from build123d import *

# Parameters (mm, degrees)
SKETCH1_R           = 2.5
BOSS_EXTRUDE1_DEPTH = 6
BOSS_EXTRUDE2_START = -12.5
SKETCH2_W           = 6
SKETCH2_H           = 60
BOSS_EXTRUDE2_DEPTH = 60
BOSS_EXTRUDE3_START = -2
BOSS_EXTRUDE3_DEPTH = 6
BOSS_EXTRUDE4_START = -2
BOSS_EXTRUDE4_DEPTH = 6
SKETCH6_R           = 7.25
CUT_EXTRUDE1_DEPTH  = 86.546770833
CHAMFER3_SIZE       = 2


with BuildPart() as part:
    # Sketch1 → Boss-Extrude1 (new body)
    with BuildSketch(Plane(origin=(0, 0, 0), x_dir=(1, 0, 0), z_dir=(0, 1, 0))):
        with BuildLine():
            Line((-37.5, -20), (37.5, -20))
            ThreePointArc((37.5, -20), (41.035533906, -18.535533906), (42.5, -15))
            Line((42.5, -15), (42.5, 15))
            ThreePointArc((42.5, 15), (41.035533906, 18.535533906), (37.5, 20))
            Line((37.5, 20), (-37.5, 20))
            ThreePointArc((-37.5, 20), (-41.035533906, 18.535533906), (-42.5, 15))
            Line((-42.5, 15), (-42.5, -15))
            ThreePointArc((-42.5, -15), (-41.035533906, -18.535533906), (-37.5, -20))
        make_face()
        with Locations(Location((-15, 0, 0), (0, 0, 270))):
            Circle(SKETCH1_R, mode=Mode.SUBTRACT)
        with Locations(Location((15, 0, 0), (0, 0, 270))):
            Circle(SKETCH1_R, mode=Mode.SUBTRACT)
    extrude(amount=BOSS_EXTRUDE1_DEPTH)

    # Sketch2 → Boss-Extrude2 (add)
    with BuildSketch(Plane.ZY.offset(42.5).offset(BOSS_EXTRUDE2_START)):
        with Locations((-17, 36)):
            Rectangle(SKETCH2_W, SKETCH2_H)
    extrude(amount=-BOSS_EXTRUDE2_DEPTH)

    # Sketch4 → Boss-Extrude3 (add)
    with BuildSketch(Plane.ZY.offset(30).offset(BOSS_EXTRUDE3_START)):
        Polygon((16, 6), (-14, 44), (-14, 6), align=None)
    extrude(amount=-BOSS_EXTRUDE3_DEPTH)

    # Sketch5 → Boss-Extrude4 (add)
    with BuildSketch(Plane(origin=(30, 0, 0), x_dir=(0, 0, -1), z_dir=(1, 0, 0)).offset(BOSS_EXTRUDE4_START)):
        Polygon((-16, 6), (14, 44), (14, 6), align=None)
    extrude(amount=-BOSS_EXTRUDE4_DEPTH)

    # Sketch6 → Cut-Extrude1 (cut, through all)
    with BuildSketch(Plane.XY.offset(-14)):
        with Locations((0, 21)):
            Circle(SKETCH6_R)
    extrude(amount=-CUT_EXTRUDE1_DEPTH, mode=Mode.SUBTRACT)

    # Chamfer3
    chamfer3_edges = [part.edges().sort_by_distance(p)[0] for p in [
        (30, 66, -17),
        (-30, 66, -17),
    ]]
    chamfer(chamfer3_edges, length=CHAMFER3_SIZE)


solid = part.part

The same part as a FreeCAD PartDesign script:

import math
import FreeCAD as App
import Part
import Sketcher
from FreeCAD import Vector


def edges_at(feature, points):
    """Names of the edges that pass closest to the given points."""
    edges = feature.Shape.Edges
    near = lambda p: min(range(len(edges)), key=lambda i: edges[i].distToShape(Part.Vertex(*p))[0])
    return sorted({f"Edge{near(p) + 1}" for p in points})

doc = App.newDocument("Part")
body = doc.addObject("PartDesign::Body", "Body")

sketch1 = body.newObject("Sketcher::SketchObject", "Sketch")
sketch1.AttachmentSupport = (doc.getObject("XZ_Plane"), [""])
sketch1.MapMode = "FlatFace"
sketch1.addGeometry([
    Part.LineSegment(Vector(-37.5, 20, 0), Vector(37.5, 20, 0)),
    Part.ArcOfCircle(Part.Circle(Vector(37.5, 15, 0), Vector(0, 0, 1), 5), math.radians(0), math.radians(90)),
    Part.LineSegment(Vector(42.5, 15, 0), Vector(42.5, -15, 0)),
    Part.ArcOfCircle(Part.Circle(Vector(37.5, -15, 0), Vector(0, 0, 1), 5), math.radians(-90), math.radians(0)),
    Part.LineSegment(Vector(37.5, -20, 0), Vector(-37.5, -20, 0)),
    Part.ArcOfCircle(Part.Circle(Vector(-37.5, -15, 0), Vector(0, 0, 1), 5), math.radians(180), math.radians(270)),
    Part.LineSegment(Vector(-42.5, -15, 0), Vector(-42.5, 15, 0)),
    Part.ArcOfCircle(Part.Circle(Vector(-37.5, 15, 0), Vector(0, 0, 1), 5), math.radians(90), math.radians(180)),
    Part.Circle(Vector(-15, 0, 0), Vector(0, 0, 1), 2.5),
    Part.Circle(Vector(15, 0, 0), Vector(0, 0, 1), 2.5),
], False)
sketch1.addConstraint([
    Sketcher.Constraint("Tangent", 0, 2, 1, 2),
    Sketcher.Constraint("Tangent", 1, 1, 2, 1),
    Sketcher.Constraint("Tangent", 2, 2, 3, 2),
    Sketcher.Constraint("Tangent", 3, 1, 4, 1),
    Sketcher.Constraint("Tangent", 4, 2, 5, 2),
    Sketcher.Constraint("Tangent", 5, 1, 6, 1),
    Sketcher.Constraint("Tangent", 6, 2, 7, 2),
    Sketcher.Constraint("Tangent", 7, 1, 0, 1),
    Sketcher.Constraint("Horizontal", 0),
    Sketcher.Constraint("Vertical", 2),
    Sketcher.Constraint("Horizontal", 4),
    Sketcher.Constraint("Vertical", 6),
    Sketcher.Constraint("Equal", 1, 3),
    Sketcher.Constraint("Equal", 3, 5),
    Sketcher.Constraint("Equal", 5, 7),
    Sketcher.Constraint("Equal", 8, 9),
    Sketcher.Constraint("Symmetric", 1, 3, 5, 3, -1, 1),
    Sketcher.Constraint("Symmetric", 8, 3, 9, 3, -1, 1),
    Sketcher.Constraint("PointOnObject", 8, 3, -1),
    Sketcher.Constraint("Diameter", 8, 5.0),
    Sketcher.Constraint("Radius", 1, 5.0),
    Sketcher.Constraint("DistanceX", 0, 1, 0, 2, 75.0),
    Sketcher.Constraint("DistanceY", 2, 2, 2, 1, 30.0),
    Sketcher.Constraint("DistanceX", 8, 3, -1, 1, 15.0),
])
pad1 = body.newObject("PartDesign::Pad", "Pad")
pad1.Profile = sketch1
pad1.Length = 6
pad1.Reversed = True

sketch2 = body.newObject("Sketcher::SketchObject", "Sketch001")
sketch2.AttachmentSupport = (doc.getObject("YZ_Plane"), [""])
sketch2.MapMode = "FlatFace"
sketch2.AttachmentOffset = App.Placement(Vector(0, 0, -30), App.Rotation())
sketch2.addGeometry([
    Part.LineSegment(Vector(66, -20, 0), Vector(6, -20, 0)),
    Part.LineSegment(Vector(6, -20, 0), Vector(6, -14, 0)),
    Part.LineSegment(Vector(6, -14, 0), Vector(66, -14, 0)),
    Part.LineSegment(Vector(66, -14, 0), Vector(66, -20, 0)),
], False)
sketch2.addConstraint([
    Sketcher.Constraint("Coincident", 0, 2, 1, 1),
    Sketcher.Constraint("Coincident", 1, 2, 2, 1),
    Sketcher.Constraint("Coincident", 2, 2, 3, 1),
    Sketcher.Constraint("Coincident", 3, 2, 0, 1),
    Sketcher.Constraint("Horizontal", 0),
    Sketcher.Constraint("Vertical", 1),
    Sketcher.Constraint("Horizontal", 2),
    Sketcher.Constraint("Vertical", 3),
    Sketcher.Constraint("DistanceX", 0, 2, 0, 1, 60.0),
    Sketcher.Constraint("DistanceY", 1, 1, 1, 2, 6.0),
    Sketcher.Constraint("DistanceX", -1, 1, 0, 2, 6.0),
    Sketcher.Constraint("DistanceY", 0, 2, -1, 1, 20.0),
])
pad2 = body.newObject("PartDesign::Pad", "Pad001")
pad2.Profile = sketch2
pad2.Length = 60

sketch3 = body.newObject("Sketcher::SketchObject", "Sketch002")
sketch3.AttachmentSupport = (doc.getObject("YZ_Plane"), [""])
sketch3.MapMode = "FlatFace"
sketch3.AttachmentOffset = App.Placement(Vector(0, 0, -28), App.Rotation())
sketch3.addGeometry([
    Part.LineSegment(Vector(6, 16, 0), Vector(44, -14, 0)),
    Part.LineSegment(Vector(44, -14, 0), Vector(6, -14, 0)),
    Part.LineSegment(Vector(6, -14, 0), Vector(6, 16, 0)),
], False)
sketch3.addConstraint([
    Sketcher.Constraint("Coincident", 0, 2, 1, 1),
    Sketcher.Constraint("Coincident", 1, 2, 2, 1),
    Sketcher.Constraint("Coincident", 2, 2, 0, 1),
    Sketcher.Constraint("Horizontal", 1),
    Sketcher.Constraint("Vertical", 2),
    Sketcher.Constraint("DistanceX", 1, 2, 1, 1, 38.0),
    Sketcher.Constraint("DistanceY", 2, 1, 2, 2, 30.0),
    Sketcher.Constraint("DistanceX", -1, 1, 0, 2, 44.0),
    Sketcher.Constraint("DistanceY", 0, 2, -1, 1, 14.0),
])
pad3 = body.newObject("PartDesign::Pad", "Pad002")
pad3.Profile = sketch3
pad3.Length = 6

sketch4 = body.newObject("Sketcher::SketchObject", "Sketch003")
sketch4.AttachmentSupport = (doc.getObject("YZ_Plane"), [""])
sketch4.MapMode = "FlatFace"
sketch4.AttachmentOffset = App.Placement(Vector(0, 0, 28), App.Rotation())
sketch4.addGeometry([
    Part.LineSegment(Vector(44, -14, 0), Vector(6, 16, 0)),
    Part.LineSegment(Vector(6, 16, 0), Vector(6, -14, 0)),
    Part.LineSegment(Vector(6, -14, 0), Vector(44, -14, 0)),
], False)
sketch4.addConstraint([
    Sketcher.Constraint("Coincident", 0, 2, 1, 1),
    Sketcher.Constraint("Coincident", 1, 2, 2, 1),
    Sketcher.Constraint("Coincident", 2, 2, 0, 1),
    Sketcher.Constraint("Vertical", 1),
    Sketcher.Constraint("Horizontal", 2),
    Sketcher.Constraint("DistanceX", 2, 1, 2, 2, 38.0),
    Sketcher.Constraint("DistanceY", 1, 2, 1, 1, 30.0),
    Sketcher.Constraint("DistanceX", -1, 1, 0, 2, 6.0),
    Sketcher.Constraint("DistanceY", -1, 1, 0, 2, 16.0),
])
pad4 = body.newObject("PartDesign::Pad", "Pad003")
pad4.Profile = sketch4
pad4.Length = 6
pad4.Reversed = True

sketch5 = body.newObject("Sketcher::SketchObject", "Sketch004")
sketch5.AttachmentSupport = (doc.getObject("XY_Plane"), [""])
sketch5.MapMode = "FlatFace"
sketch5.AttachmentOffset = App.Placement(Vector(0, 0, -14), App.Rotation())
sketch5.addGeometry(Part.Circle(Vector(0, 21, 0), Vector(0, 0, 1), 7), False)
sketch5.addConstraint([
    Sketcher.Constraint("PointOnObject", 0, 3, -2),
    Sketcher.Constraint("Diameter", 0, 14.5),
    Sketcher.Constraint("DistanceY", -1, 1, 0, 3, 21.0),
])
pocket1 = body.newObject("PartDesign::Pocket", "Pocket")
pocket1.Profile = sketch5
pocket1.Type = "ThroughAll"
doc.recompute()

chamfer = body.newObject("PartDesign::Chamfer", "Chamfer")
chamfer.Base = (pocket1, edges_at(pocket1, [(30, 66, -17), (-30, 66, -17)]))
chamfer.Size = 2

doc.recompute()
